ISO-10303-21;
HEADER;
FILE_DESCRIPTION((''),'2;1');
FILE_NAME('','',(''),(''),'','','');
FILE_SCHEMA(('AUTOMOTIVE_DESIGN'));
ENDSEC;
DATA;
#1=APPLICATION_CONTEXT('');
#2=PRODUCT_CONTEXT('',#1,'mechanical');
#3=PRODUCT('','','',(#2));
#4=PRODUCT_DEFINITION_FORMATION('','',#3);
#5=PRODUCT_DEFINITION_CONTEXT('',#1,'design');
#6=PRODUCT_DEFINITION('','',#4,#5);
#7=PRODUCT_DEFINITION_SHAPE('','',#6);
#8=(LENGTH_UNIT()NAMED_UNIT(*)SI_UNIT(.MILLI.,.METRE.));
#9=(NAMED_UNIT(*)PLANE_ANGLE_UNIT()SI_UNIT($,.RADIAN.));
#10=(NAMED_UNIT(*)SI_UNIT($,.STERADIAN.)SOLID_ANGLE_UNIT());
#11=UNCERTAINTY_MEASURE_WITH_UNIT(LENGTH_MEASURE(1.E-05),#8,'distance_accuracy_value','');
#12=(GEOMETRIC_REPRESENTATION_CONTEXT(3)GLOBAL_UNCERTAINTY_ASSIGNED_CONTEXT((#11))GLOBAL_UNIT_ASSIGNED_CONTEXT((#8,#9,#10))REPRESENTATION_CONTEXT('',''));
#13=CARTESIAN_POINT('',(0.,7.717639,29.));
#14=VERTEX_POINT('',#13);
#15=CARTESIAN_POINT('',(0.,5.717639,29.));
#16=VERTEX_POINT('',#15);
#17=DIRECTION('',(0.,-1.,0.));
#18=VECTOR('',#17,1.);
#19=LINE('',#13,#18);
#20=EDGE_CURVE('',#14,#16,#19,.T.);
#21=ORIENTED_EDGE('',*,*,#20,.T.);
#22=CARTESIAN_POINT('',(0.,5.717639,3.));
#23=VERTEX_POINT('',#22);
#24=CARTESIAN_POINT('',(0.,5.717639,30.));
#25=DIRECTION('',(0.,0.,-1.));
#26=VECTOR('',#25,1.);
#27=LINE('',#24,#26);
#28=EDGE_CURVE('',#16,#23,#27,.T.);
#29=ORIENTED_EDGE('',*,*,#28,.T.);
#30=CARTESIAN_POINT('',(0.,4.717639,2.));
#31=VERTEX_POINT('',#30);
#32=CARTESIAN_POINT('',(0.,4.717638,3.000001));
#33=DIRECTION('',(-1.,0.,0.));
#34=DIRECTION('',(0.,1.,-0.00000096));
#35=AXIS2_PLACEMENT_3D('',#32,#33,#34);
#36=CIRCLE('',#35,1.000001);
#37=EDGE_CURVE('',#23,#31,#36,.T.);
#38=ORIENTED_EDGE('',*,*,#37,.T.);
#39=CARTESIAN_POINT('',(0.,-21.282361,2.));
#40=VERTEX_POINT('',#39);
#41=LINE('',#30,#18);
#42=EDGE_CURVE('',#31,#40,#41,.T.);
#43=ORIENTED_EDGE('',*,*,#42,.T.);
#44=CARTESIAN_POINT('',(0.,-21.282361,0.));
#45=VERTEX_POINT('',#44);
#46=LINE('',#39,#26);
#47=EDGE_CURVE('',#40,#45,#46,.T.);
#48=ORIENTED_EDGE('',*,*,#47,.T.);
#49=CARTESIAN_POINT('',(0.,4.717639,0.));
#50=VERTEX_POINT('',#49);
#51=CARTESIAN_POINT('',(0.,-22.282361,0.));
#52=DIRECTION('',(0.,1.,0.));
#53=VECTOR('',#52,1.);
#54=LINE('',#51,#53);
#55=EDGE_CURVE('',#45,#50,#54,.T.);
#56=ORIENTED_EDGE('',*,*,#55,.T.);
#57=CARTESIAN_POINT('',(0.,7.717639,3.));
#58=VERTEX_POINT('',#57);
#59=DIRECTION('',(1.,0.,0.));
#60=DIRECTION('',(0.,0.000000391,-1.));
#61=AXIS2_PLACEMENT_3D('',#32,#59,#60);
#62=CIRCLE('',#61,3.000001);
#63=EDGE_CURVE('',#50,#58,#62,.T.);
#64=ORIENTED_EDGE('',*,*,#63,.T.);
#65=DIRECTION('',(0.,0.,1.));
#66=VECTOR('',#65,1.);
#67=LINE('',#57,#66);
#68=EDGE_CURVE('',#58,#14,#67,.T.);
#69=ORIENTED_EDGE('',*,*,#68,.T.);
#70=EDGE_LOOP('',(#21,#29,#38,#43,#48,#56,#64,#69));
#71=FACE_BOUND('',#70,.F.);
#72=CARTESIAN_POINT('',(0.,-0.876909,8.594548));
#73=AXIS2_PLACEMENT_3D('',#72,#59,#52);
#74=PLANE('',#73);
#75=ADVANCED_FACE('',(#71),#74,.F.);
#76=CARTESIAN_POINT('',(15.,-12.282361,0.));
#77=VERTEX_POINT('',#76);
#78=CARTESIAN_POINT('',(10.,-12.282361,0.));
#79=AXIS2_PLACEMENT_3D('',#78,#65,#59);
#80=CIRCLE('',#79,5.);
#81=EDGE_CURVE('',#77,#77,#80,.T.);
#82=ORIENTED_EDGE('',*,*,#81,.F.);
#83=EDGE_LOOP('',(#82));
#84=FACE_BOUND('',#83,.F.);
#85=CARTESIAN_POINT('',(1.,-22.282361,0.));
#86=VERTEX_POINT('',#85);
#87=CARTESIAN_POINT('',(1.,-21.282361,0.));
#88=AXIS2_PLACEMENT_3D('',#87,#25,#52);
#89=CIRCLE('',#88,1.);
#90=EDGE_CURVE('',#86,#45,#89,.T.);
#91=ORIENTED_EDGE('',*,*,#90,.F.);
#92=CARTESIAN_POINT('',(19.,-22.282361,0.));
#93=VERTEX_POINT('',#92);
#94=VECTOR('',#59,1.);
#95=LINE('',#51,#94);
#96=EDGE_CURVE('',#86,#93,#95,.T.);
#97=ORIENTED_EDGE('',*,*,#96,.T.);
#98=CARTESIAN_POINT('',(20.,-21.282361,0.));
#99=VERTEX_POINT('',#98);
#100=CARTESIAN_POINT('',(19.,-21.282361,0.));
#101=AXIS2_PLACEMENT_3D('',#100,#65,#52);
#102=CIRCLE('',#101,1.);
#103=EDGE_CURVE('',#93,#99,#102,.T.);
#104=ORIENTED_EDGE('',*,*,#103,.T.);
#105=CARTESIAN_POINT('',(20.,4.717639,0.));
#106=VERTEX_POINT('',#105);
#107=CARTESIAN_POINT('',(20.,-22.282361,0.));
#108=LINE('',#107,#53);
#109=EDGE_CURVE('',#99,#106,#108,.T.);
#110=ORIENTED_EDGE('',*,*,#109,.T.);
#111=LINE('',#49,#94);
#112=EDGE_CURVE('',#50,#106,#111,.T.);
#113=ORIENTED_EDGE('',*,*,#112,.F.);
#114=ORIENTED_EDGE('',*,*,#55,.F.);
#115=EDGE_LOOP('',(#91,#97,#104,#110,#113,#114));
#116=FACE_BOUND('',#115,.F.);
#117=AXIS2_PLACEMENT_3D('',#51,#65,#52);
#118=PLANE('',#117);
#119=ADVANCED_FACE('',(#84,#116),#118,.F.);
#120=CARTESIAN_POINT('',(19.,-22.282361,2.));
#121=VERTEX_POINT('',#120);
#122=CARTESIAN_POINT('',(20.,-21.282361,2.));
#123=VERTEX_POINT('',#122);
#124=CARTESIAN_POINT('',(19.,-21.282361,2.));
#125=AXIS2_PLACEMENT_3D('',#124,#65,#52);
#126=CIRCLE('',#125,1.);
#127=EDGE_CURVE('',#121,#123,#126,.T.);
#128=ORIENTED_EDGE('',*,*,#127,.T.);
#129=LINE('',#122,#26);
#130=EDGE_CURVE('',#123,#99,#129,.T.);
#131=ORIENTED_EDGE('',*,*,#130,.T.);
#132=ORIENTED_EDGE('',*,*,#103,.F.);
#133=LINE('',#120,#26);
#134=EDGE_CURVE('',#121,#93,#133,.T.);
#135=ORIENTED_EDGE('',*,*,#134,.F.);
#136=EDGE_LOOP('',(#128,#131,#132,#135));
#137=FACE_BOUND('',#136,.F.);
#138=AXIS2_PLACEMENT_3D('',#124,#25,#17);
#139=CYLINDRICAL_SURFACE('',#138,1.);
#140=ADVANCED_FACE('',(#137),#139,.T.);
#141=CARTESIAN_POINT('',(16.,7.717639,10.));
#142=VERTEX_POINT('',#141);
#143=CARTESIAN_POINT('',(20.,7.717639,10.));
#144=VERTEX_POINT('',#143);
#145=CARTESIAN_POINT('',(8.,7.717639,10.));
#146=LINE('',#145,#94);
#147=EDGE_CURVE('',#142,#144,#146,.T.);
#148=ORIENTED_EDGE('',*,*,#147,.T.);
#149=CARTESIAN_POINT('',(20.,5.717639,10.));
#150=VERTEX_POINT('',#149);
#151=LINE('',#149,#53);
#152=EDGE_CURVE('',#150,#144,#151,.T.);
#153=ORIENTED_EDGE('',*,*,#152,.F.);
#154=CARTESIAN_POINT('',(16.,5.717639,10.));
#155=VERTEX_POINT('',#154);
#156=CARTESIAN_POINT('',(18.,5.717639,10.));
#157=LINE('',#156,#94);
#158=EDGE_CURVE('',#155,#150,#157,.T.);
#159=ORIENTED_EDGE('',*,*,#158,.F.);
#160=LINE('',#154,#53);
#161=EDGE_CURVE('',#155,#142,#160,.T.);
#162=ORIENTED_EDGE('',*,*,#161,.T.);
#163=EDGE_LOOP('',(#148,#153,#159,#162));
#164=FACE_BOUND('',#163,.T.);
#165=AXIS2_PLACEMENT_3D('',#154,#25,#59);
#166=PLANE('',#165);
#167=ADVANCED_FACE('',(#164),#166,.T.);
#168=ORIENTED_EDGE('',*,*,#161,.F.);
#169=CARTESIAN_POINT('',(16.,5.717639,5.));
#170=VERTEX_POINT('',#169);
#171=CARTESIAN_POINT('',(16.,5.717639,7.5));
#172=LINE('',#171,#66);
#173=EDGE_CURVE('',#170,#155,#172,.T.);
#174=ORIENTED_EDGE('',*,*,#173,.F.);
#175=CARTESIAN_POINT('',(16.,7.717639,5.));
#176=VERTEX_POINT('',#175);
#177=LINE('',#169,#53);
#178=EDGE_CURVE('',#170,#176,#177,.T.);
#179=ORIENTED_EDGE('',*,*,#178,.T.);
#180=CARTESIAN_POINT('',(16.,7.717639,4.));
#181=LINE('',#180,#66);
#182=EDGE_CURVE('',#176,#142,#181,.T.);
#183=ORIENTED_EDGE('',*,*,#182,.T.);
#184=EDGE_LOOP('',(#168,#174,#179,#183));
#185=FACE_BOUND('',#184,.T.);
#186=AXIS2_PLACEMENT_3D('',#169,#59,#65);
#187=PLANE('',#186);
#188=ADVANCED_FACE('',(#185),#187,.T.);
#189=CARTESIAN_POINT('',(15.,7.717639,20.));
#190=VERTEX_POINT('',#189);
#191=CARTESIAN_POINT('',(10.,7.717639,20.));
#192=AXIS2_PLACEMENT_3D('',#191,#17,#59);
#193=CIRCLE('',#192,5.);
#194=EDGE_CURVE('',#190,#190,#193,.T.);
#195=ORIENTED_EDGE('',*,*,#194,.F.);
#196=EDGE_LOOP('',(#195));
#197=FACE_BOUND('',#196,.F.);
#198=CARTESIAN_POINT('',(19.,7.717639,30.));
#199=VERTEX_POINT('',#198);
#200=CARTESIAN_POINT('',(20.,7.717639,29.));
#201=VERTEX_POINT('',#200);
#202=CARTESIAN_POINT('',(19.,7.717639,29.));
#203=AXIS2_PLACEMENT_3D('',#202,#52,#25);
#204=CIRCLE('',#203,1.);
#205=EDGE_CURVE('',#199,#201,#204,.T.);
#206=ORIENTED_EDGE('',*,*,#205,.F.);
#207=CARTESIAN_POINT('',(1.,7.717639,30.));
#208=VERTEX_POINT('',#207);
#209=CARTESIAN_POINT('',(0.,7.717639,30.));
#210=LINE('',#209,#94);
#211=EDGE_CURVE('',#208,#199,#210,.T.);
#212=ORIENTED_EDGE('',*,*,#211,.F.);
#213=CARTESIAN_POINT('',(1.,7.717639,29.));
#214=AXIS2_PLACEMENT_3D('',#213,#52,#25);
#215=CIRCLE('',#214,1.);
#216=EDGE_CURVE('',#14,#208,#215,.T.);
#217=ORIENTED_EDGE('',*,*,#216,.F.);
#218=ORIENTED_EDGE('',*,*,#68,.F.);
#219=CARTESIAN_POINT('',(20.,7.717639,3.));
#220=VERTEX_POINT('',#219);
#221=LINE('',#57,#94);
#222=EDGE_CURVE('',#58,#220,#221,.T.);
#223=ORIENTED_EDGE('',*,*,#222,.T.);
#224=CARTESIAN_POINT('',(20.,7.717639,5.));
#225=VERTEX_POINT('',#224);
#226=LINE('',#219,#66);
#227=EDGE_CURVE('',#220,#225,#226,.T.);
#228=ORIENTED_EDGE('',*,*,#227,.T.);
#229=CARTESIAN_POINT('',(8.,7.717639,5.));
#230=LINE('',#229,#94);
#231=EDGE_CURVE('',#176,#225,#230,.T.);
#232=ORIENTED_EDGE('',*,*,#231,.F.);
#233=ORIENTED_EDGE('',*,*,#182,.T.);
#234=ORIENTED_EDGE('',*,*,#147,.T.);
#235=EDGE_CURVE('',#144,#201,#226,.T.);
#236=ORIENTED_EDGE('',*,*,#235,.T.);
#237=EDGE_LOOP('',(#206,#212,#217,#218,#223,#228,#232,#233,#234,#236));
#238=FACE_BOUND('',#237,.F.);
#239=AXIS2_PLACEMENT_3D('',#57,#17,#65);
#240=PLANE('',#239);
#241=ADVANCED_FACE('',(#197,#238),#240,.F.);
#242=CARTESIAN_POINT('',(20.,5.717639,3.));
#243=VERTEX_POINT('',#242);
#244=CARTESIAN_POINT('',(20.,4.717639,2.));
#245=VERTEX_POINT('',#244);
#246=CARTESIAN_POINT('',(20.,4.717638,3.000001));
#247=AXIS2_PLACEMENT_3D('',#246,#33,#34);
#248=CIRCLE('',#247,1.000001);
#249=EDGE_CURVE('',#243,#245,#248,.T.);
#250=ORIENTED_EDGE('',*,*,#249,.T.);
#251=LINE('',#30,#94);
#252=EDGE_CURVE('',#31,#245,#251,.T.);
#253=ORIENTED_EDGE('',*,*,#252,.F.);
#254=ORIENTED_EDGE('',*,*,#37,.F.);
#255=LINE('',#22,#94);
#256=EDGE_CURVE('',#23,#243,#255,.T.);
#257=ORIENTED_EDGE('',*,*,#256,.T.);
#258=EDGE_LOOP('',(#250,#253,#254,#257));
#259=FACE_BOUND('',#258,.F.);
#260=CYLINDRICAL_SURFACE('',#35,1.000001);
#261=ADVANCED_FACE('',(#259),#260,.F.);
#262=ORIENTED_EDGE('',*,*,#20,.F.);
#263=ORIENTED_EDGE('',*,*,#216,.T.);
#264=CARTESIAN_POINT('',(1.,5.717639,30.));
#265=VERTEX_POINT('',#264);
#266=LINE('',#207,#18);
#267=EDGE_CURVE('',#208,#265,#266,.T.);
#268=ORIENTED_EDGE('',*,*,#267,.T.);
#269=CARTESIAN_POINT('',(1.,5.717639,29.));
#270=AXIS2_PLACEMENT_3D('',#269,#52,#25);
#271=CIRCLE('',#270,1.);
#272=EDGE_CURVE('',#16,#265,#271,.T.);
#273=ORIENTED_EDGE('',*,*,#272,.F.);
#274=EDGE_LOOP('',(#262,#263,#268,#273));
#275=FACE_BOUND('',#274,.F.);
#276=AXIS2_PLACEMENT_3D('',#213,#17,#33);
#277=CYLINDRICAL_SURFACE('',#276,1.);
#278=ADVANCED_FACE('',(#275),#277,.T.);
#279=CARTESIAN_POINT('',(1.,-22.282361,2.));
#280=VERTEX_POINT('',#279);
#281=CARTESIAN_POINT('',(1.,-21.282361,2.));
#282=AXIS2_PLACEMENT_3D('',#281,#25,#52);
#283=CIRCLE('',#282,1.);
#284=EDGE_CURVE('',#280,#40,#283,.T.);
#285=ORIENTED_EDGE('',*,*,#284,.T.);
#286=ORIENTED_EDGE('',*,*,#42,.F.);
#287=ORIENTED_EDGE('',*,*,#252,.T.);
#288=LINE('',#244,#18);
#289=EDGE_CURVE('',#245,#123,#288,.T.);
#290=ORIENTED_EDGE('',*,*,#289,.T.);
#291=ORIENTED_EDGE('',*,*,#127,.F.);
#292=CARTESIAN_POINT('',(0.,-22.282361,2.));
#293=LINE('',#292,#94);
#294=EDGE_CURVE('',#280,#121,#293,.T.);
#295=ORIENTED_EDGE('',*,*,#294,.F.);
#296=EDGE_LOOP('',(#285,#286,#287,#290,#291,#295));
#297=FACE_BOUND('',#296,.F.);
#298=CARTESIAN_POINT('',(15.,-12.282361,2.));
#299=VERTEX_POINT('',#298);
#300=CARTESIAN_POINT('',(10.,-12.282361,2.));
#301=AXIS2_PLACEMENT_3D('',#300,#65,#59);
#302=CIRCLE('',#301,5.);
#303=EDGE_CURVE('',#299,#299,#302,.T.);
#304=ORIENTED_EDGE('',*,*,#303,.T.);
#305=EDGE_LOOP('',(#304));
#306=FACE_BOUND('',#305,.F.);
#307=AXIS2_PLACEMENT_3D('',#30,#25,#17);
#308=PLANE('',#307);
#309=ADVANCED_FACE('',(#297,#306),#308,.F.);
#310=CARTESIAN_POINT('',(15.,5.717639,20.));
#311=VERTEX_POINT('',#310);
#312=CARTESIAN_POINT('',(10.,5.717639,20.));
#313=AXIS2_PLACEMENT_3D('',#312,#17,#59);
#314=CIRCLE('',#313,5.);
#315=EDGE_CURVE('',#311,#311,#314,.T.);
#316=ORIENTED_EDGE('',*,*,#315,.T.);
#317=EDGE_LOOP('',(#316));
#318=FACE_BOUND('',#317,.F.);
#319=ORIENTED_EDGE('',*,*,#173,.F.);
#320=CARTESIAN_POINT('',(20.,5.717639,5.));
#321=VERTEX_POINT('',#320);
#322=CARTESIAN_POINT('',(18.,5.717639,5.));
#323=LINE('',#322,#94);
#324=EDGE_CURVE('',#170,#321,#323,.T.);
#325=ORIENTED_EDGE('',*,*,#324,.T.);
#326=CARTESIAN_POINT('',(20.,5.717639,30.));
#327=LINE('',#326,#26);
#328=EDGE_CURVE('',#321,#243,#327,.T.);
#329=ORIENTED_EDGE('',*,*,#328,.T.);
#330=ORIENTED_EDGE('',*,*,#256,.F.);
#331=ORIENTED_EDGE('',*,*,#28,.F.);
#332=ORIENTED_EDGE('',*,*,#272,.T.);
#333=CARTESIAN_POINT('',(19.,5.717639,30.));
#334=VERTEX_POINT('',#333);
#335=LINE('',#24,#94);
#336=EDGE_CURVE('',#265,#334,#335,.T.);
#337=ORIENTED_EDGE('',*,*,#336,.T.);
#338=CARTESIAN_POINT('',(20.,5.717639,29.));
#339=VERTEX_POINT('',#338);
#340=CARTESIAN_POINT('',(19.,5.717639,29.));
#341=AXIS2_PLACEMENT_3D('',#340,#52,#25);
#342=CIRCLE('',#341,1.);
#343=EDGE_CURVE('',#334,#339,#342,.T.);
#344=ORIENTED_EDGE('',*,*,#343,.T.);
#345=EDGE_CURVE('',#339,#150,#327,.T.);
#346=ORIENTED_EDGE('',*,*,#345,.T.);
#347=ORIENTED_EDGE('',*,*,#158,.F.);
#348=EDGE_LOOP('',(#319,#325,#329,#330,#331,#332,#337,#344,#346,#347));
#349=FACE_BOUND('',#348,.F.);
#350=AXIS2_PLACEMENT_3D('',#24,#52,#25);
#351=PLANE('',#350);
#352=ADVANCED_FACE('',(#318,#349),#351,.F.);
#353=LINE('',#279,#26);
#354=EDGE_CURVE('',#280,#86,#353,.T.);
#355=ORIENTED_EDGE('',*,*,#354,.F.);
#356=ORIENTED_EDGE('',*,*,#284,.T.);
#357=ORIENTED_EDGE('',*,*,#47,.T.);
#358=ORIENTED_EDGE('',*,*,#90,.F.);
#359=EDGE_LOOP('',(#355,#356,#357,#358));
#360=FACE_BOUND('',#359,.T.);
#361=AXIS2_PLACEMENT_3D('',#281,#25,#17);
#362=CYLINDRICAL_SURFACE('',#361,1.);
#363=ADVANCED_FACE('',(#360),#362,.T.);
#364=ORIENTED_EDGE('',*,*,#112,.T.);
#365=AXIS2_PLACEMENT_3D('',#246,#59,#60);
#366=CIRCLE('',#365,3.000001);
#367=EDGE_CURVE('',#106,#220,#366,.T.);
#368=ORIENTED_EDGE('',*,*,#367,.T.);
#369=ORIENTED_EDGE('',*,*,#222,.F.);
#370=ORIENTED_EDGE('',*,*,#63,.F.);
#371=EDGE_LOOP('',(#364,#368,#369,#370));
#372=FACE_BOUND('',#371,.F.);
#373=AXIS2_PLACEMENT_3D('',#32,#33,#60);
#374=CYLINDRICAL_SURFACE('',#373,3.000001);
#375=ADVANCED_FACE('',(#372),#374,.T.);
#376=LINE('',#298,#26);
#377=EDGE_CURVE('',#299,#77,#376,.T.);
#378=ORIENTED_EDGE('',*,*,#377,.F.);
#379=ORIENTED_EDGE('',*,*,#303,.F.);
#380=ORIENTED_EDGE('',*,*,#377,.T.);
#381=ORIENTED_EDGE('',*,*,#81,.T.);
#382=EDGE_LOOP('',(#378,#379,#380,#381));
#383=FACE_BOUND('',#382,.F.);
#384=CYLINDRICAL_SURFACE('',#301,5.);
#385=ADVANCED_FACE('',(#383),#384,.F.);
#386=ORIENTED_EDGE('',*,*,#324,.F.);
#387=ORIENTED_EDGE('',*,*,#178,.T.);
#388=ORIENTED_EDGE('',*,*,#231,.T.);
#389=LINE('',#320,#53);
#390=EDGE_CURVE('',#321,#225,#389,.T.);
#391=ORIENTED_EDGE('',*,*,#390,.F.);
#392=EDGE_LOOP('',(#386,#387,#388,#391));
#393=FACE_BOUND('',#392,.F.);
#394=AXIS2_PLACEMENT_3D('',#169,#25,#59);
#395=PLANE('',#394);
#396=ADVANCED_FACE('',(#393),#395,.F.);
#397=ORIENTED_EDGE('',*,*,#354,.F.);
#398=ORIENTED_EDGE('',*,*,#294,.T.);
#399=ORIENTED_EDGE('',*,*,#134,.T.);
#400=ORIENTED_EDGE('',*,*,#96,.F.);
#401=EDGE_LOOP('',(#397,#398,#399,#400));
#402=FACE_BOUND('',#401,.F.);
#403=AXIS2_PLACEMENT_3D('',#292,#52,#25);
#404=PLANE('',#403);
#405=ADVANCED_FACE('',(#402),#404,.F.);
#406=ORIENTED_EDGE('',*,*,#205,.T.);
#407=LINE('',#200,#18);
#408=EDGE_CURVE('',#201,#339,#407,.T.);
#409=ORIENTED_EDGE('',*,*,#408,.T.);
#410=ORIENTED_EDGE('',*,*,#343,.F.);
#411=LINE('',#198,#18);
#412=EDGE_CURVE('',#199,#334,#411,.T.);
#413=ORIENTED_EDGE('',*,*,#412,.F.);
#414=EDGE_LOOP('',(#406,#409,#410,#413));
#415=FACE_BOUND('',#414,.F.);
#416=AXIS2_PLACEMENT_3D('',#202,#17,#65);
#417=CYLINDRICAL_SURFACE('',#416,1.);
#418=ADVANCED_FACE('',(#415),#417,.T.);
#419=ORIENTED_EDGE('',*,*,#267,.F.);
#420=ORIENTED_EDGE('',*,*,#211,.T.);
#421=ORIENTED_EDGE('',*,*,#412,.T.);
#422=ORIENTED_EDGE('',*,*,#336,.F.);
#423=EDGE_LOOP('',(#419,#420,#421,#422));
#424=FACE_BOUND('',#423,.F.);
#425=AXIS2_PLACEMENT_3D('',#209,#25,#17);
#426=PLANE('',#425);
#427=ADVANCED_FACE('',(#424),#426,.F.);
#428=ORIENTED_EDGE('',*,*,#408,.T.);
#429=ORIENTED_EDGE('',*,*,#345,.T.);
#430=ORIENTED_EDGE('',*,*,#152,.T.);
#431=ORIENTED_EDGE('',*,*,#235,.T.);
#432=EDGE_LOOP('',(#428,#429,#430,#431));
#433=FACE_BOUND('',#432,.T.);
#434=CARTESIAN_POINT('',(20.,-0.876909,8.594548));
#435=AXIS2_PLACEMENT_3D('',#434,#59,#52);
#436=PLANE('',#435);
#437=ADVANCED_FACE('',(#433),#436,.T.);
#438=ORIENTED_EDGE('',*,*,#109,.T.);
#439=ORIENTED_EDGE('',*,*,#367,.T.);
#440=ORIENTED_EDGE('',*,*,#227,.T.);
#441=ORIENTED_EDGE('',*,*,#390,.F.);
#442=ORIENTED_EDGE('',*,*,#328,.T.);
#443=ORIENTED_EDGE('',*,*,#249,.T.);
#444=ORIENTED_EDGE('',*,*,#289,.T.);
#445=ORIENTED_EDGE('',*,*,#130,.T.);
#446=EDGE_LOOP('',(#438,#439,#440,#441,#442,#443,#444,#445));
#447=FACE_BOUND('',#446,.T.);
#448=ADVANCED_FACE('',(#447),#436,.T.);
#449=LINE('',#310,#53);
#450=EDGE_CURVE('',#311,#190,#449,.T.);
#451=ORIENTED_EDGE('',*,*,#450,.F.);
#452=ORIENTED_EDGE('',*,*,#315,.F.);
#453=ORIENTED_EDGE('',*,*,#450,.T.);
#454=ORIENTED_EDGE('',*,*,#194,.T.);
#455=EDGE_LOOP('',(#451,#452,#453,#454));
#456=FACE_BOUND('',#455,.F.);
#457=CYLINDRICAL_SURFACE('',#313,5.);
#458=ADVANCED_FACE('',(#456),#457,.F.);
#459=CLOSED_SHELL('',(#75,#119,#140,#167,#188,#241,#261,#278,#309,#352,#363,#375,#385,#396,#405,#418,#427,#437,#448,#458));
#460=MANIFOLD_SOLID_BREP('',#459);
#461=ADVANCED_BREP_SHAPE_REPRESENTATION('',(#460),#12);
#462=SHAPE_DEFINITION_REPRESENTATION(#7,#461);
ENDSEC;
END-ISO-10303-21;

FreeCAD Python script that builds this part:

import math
import FreeCAD as App
import Part
import Sketcher
from FreeCAD import Vector
Q = App.Units.Quantity


def edges_at(feature, points):
    """Names of the edges that pass closest to the given points."""
    edges = feature.Shape.Edges
    near = lambda p: min(range(len(edges)), key=lambda i: edges[i].distToShape(Part.Vertex(*p))[0])
    return sorted({f"Edge{near(p) + 1}" for p in points})

doc = App.newDocument("Part")
body = doc.addObject("PartDesign::Body", "Body")

# Sketch on YZ plane
sketch1 = body.newObject("Sketcher::SketchObject", "Sketch")
sketch1.AttachmentSupport = (doc.getObject("YZ_Plane"), [""])
sketch1.MapMode = "FlatFace"
sketch1.addGeometry([
    Part.LineSegment(Vector(-22.282361, 2, 0), Vector(-22.282361, 0, 0)),  # 0
    Part.LineSegment(Vector(-22.282361, 0, 0), Vector(4.717639, 0, 0)),  # 1
    Part.ArcOfCircle(Part.Circle(Vector(4.717638, 3.000001, 0), Vector(0, 0, 1), 3.000001), math.radians(-89.999978), math.radians(-0.000022)),  # 2
    Part.LineSegment(Vector(7.717639, 3, 0), Vector(7.717639, 30, 0)),  # 3
    Part.LineSegment(Vector(7.717639, 30, 0), Vector(5.717639, 30, 0)),  # 4
    Part.LineSegment(Vector(5.717639, 30, 0), Vector(5.717639, 3, 0)),  # 5
    Part.ArcOfCircle(Part.Circle(Vector(4.717638, 3.000001, 0), Vector(0, 0, 1), 1.000001), math.radians(-89.999945), math.radians(-0.000055)),  # 6
    Part.LineSegment(Vector(4.717639, 2, 0), Vector(-22.282361, 2, 0)),  # 7
], False)
sketch1.addConstraint([
    Sketcher.Constraint("Coincident", 0, 2, 1, 1),
    Sketcher.Constraint("Tangent", 1, 2, 2, 1),
    Sketcher.Constraint("Tangent", 2, 2, 3, 1),
    Sketcher.Constraint("Coincident", 3, 2, 4, 1),
    Sketcher.Constraint("Coincident", 4, 2, 5, 1),
    Sketcher.Constraint("Tangent", 5, 2, 6, 2),
    Sketcher.Constraint("Tangent", 6, 1, 7, 1),
    Sketcher.Constraint("Coincident", 7, 2, 0, 1),
    Sketcher.Constraint("Vertical", 0),
    Sketcher.Constraint("Horizontal", 1),
    Sketcher.Constraint("Vertical", 3),
    Sketcher.Constraint("Horizontal", 4),
    Sketcher.Constraint("Vertical", 5),
    Sketcher.Constraint("Horizontal", 7),
    Sketcher.Constraint("Coincident", 6, 3, 2, 3),
    Sketcher.Constraint("PointOnObject", 0, 2, -1),
    Sketcher.Constraint("Equal", 7, 3),
    Sketcher.Constraint("Radius", 2, Q("3.000001 mm")),
    Sketcher.Constraint("Radius", 6, Q("1.000001 mm")),
    Sketcher.Constraint("DistanceX", 1, 1, 1, 2, Q("27 mm")),
    Sketcher.Constraint("DistanceX", -1, 1, 6, 3, Q("4.717638 mm")),
])
pad1 = body.newObject("PartDesign::Pad", "Pad")
pad1.Profile = sketch1
pad1.Length = 20

# Sketch on XY plane
sketch2 = body.newObject("Sketcher::SketchObject", "Sketch001")
sketch2.AttachmentSupport = (doc.getObject("XY_Plane"), [""])
sketch2.MapMode = "FlatFace"
sketch2.AttachmentOffset = App.Placement(Vector(0, 0, 2), App.Rotation())
sketch2.addGeometry(Part.Circle(Vector(10, -12.282361, 0), Vector(0, 0, 1), 5), False)
sketch2.addConstraint([
    Sketcher.Constraint("Diameter", 0, Q("10 mm")),
    Sketcher.Constraint("DistanceX", -1, 1, 0, 3, Q("10 mm")),
    Sketcher.Constraint("DistanceY", 0, 3, -1, 1, Q("12.282361 mm")),
])
pocket1 = body.newObject("PartDesign::Pocket", "Pocket")
pocket1.Profile = sketch2
pocket1.Length = 25

# Sketch on XZ plane
sketch3 = body.newObject("Sketcher::SketchObject", "Sketch002")
sketch3.AttachmentSupport = (doc.getObject("XZ_Plane"), [""])
sketch3.MapMode = "FlatFace"
sketch3.AttachmentOffset = App.Placement(Vector(0, 0, -5.717639), App.Rotation())
sketch3.addGeometry([
    Part.Circle(Vector(10, 20, 0), Vector(0, 0, 1), 5),  # 0
    Part.LineSegment(Vector(16, 10, 0), Vector(16, 5, 0)),  # 1
    Part.LineSegment(Vector(16, 5, 0), Vector(20, 5, 0)),  # 2
    Part.LineSegment(Vector(20, 5, 0), Vector(20, 10, 0)),  # 3
    Part.LineSegment(Vector(20, 10, 0), Vector(16, 10, 0)),  # 4
], False)
sketch3.addConstraint([
    Sketcher.Constraint("Coincident", 1, 2, 2, 1),
    Sketcher.Constraint("Coincident", 2, 2, 3, 1),
    Sketcher.Constraint("Coincident", 3, 2, 4, 1),
    Sketcher.Constraint("Coincident", 4, 2, 1, 1),
    Sketcher.Constraint("Vertical", 1),
    Sketcher.Constraint("Horizontal", 2),
    Sketcher.Constraint("Vertical", 3),
    Sketcher.Constraint("Horizontal", 4),
    Sketcher.Constraint("Diameter", 0, Q("10 mm")),
    Sketcher.Constraint("DistanceX", 2, 1, 2, 2, Q("4 mm")),
    Sketcher.Constraint("DistanceY", 1, 2, 1, 1, Q("5 mm")),
    Sketcher.Constraint("DistanceX", -1, 1, 0, 3, Q("10 mm")),
    Sketcher.Constraint("DistanceY", -1, 1, 0, 3, Q("20 mm")),
    Sketcher.Constraint("DistanceX", -1, 1, 1, 2, Q("16 mm")),
    Sketcher.Constraint("DistanceY", -1, 1, 1, 2, Q("5 mm")),
])
pocket2 = body.newObject("PartDesign::Pocket", "Pocket001")
pocket2.Profile = sketch3
pocket2.Length = 25
doc.recompute()

fillet = body.newObject("PartDesign::Fillet", "Fillet")
fillet.Base = (pocket2, edges_at(pocket2, [
    (20, 6.718, 30),
    (20, -22.282, 1),
    (0, -22.282, 1),
    (0, 6.718, 30),
]))
fillet.Radius = 1

doc.recompute()
